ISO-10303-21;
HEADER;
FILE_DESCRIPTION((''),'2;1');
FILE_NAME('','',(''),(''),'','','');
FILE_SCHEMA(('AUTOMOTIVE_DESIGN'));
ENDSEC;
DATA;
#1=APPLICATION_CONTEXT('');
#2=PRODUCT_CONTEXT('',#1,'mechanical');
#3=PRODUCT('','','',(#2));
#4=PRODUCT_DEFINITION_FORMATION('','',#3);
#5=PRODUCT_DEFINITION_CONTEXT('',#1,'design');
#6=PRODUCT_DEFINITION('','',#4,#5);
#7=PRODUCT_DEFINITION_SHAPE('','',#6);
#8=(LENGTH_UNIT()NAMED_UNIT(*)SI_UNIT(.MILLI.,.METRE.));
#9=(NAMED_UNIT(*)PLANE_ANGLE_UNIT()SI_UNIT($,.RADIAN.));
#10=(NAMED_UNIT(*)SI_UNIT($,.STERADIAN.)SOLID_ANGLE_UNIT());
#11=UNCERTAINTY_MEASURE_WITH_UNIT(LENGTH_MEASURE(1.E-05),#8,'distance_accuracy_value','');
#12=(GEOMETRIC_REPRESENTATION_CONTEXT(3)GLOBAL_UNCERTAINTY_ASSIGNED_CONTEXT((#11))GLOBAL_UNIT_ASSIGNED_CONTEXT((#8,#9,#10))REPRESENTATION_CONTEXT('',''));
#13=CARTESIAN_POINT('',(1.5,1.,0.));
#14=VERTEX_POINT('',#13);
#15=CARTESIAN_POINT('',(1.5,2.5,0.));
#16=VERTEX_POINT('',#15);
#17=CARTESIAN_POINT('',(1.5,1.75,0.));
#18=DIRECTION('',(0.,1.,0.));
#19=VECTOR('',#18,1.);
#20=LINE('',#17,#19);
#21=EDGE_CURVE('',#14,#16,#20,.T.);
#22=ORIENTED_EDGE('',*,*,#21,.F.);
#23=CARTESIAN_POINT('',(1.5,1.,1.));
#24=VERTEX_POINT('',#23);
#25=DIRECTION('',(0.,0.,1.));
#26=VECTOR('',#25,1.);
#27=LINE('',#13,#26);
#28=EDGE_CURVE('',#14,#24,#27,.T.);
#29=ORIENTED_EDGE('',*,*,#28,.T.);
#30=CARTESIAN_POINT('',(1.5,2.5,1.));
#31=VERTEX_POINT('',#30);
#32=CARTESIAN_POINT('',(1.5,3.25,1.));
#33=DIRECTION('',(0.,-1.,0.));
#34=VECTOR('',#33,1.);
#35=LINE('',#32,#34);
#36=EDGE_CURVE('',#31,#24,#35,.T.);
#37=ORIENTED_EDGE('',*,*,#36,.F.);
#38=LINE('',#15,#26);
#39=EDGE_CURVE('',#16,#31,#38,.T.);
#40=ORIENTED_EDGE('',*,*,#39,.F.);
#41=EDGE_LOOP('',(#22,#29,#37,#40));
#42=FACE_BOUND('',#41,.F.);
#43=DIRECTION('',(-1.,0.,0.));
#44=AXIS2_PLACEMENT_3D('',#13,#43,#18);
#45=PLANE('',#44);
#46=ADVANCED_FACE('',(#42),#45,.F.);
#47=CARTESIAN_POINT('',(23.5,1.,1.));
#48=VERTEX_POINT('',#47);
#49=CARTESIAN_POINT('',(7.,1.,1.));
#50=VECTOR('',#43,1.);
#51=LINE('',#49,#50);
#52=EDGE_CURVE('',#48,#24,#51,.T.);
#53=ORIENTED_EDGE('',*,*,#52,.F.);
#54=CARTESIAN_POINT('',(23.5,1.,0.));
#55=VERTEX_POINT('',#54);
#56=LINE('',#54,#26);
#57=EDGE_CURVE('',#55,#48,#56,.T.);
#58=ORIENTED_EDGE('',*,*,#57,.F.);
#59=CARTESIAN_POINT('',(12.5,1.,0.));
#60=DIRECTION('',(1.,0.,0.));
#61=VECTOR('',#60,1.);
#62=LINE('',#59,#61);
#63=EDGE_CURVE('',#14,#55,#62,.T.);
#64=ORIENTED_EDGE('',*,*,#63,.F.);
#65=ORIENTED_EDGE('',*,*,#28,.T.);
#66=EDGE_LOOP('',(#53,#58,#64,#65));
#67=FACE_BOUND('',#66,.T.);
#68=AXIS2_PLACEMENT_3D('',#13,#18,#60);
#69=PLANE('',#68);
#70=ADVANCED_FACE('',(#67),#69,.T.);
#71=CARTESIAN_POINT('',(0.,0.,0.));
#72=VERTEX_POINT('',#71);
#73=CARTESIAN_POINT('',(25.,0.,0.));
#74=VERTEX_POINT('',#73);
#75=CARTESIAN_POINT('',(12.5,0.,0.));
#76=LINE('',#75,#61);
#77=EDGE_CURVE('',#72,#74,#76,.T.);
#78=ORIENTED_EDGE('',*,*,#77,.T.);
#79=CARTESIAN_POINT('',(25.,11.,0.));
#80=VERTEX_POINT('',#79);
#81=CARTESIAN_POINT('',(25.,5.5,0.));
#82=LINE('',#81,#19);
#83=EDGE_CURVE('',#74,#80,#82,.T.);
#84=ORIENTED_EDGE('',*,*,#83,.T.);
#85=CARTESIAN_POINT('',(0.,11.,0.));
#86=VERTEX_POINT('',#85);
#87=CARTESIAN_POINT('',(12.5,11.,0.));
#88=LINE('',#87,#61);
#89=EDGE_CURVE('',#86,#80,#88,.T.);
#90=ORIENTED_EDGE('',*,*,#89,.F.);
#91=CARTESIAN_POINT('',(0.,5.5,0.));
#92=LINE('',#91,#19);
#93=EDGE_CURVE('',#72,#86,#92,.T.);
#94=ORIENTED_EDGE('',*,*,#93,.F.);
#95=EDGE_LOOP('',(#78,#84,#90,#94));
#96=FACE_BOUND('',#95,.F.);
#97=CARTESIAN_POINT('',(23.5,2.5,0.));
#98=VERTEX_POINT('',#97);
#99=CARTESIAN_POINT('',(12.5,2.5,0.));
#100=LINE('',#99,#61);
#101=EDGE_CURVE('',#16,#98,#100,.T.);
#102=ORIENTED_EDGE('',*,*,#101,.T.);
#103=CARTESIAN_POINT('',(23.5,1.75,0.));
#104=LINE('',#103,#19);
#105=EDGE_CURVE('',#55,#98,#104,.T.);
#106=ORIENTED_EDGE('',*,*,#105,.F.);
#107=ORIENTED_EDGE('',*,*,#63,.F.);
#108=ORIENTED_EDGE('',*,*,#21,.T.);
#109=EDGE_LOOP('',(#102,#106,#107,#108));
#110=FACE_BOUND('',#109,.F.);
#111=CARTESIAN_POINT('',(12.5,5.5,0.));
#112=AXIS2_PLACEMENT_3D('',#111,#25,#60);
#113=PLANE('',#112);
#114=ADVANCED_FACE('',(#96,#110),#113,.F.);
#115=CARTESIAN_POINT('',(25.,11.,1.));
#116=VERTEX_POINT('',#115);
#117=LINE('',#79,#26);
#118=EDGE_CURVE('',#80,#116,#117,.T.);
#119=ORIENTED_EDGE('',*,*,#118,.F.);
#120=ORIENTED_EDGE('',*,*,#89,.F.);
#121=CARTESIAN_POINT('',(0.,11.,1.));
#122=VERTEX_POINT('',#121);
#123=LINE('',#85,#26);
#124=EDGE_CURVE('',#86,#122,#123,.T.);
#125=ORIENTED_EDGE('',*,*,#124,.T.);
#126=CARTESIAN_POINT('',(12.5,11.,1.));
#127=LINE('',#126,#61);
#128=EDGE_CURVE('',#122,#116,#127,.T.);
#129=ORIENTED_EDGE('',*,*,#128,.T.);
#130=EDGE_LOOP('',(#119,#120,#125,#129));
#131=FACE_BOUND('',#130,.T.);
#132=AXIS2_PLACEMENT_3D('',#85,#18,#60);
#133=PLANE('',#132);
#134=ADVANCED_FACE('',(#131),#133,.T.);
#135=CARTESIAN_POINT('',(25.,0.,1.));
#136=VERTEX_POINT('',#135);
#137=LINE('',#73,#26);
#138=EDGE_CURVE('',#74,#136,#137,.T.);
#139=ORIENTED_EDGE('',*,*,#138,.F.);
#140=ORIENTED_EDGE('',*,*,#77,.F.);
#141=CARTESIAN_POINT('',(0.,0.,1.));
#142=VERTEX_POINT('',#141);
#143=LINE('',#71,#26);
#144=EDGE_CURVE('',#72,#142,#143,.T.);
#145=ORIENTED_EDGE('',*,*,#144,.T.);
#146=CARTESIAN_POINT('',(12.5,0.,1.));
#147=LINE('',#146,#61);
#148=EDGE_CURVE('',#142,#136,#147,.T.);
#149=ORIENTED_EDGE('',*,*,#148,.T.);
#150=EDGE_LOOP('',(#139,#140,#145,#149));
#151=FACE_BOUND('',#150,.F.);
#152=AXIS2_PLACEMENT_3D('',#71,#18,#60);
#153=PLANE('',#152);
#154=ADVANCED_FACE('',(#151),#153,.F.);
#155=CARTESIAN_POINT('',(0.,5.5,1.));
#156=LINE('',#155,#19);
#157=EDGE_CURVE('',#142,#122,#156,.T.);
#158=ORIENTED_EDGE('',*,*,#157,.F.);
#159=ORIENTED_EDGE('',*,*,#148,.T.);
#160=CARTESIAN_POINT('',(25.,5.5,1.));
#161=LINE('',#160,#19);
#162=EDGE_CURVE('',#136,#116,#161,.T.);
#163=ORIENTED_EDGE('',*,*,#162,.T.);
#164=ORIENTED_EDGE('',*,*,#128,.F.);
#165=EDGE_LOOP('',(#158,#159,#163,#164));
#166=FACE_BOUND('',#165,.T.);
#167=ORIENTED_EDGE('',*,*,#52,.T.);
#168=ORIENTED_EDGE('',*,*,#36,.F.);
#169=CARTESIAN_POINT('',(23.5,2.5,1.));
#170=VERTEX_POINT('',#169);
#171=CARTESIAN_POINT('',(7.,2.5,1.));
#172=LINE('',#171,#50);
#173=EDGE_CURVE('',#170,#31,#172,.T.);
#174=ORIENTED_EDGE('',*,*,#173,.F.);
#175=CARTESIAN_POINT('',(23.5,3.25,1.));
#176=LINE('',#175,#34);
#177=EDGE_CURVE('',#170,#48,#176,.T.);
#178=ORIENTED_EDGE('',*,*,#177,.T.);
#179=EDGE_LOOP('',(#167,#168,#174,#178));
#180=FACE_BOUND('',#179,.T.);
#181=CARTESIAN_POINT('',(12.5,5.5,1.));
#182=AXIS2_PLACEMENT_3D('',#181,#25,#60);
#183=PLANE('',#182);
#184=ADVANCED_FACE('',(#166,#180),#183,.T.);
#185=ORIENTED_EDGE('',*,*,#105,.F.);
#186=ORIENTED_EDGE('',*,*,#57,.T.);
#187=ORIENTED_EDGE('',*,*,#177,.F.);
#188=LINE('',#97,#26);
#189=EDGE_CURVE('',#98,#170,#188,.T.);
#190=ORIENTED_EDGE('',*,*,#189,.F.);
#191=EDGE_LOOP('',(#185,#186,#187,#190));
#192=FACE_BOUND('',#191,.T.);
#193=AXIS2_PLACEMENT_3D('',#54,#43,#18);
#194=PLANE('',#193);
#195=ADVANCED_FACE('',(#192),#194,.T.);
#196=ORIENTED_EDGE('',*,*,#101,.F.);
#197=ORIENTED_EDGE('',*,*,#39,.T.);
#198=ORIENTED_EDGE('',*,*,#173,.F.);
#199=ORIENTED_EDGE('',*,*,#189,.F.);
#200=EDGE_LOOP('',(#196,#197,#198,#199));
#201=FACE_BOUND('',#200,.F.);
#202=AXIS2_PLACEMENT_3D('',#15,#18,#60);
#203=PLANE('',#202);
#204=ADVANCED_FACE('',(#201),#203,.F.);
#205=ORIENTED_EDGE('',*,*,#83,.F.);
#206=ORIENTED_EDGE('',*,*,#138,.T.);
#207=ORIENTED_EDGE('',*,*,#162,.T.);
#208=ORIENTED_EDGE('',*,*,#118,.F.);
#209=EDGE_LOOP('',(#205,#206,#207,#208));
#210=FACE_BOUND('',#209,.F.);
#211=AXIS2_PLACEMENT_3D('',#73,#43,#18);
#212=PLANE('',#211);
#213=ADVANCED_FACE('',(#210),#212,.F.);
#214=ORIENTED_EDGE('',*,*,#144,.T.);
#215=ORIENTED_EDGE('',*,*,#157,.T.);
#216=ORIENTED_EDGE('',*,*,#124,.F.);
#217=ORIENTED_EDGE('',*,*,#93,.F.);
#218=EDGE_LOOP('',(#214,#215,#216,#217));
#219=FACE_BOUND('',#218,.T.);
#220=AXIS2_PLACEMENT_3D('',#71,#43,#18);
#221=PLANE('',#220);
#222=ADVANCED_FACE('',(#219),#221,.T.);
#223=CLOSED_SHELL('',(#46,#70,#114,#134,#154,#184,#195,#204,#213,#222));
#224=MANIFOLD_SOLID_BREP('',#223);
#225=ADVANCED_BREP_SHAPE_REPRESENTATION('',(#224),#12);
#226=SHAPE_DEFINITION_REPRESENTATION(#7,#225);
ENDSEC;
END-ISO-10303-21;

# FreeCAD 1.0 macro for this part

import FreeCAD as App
import Part
import Sketcher
from FreeCAD import Vector

doc = App.newDocument("Part")
body = doc.addObject("PartDesign::Body", "Body")

# Sketch on XY plane
sketch1 = doc.addObject("Sketcher::SketchObject", "Sketch")
body.addObject(sketch1)
sketch1.AttachmentSupport = (doc.XY_Plane, [""])
sketch1.MapMode = "FlatFace"
sketch1.addGeometry(Part.LineSegment(Vector(1.5, 2.5, 0), Vector(1.5, 1, 0)), False)
sketch1.addGeometry(Part.LineSegment(Vector(1.5, 1, 0), Vector(23.5, 1, 0)), False)
sketch1.addGeometry(Part.LineSegment(Vector(23.5, 1, 0), Vector(23.5, 2.5, 0)), False)
sketch1.addGeometry(Part.LineSegment(Vector(23.5, 2.5, 0), Vector(1.5, 2.5, 0)), False)
sketch1.addConstraint(Sketcher.Constraint("Coincident", 0, 2, 1, 1))
sketch1.addConstraint(Sketcher.Constraint("Coincident", 1, 2, 2, 1))
sketch1.addConstraint(Sketcher.Constraint("Coincident", 2, 2, 3, 1))
sketch1.addConstraint(Sketcher.Constraint("Coincident", 3, 2, 0, 1))
sketch1.addConstraint(Sketcher.Constraint("Vertical", 0))
sketch1.addConstraint(Sketcher.Constraint("Horizontal", 1))
sketch1.addConstraint(Sketcher.Constraint("Vertical", 2))
sketch1.addConstraint(Sketcher.Constraint("Horizontal", 3))
sketch1.addConstraint(Sketcher.Constraint("DistanceX", 1, 1, 1, 2, 22.0))
sketch1.addConstraint(Sketcher.Constraint("DistanceY", 0, 2, 0, 1, 1.5))
sketch1.addConstraint(Sketcher.Constraint("DistanceY", -1, 1, 0, 2, 1.0))
sketch1.addConstraint(Sketcher.Constraint("DistanceX", -1, 1, 0, 2, 1.5))
pad1 = doc.addObject("PartDesign::Pad", "Pad")
body.addObject(pad1)
pad1.Profile = sketch1
pad1.Length = 2
body2 = doc.addObject("PartDesign::Body", "Body001")

# Sketch on XY plane
sketch2 = doc.addObject("Sketcher::SketchObject", "Sketch001")
body2.addObject(sketch2)
sketch2.AttachmentSupport = (doc.getObject("XY_Plane001"), [""])
sketch2.MapMode = "FlatFace"
sketch2.addGeometry(Part.LineSegment(Vector(0, 11, 0), Vector(0, 0, 0)), False)
sketch2.addGeometry(Part.LineSegment(Vector(0, 0, 0), Vector(25, 0, 0)), False)
sketch2.addGeometry(Part.LineSegment(Vector(25, 0, 0), Vector(25, 11, 0)), False)
sketch2.addGeometry(Part.LineSegment(Vector(25, 11, 0), Vector(0, 11, 0)), False)
sketch2.addConstraint(Sketcher.Constraint("Coincident", 0, 2, 1, 1))
sketch2.addConstraint(Sketcher.Constraint("Coincident", 1, 2, 2, 1))
sketch2.addConstraint(Sketcher.Constraint("Coincident", 2, 2, 3, 1))
sketch2.addConstraint(Sketcher.Constraint("Coincident", 3, 2, 0, 1))
sketch2.addConstraint(Sketcher.Constraint("Vertical", 0))
sketch2.addConstraint(Sketcher.Constraint("Horizontal", 1))
sketch2.addConstraint(Sketcher.Constraint("Vertical", 2))
sketch2.addConstraint(Sketcher.Constraint("Horizontal", 3))
sketch2.addConstraint(Sketcher.Constraint("Coincident", 0, 2, -1, 1))
sketch2.addConstraint(Sketcher.Constraint("DistanceX", 1, 1, 1, 2, 25.0))
sketch2.addConstraint(Sketcher.Constraint("DistanceY", 0, 2, 0, 1, 11.0))
pad2 = doc.addObject("PartDesign::Pad", "Pad001")
body2.addObject(pad2)
pad2.Profile = sketch2
pad2.Length = 1
doc.recompute()

boolean = doc.addObject("PartDesign::Boolean", "Boolean")
body2.addObject(boolean)
boolean.Type = "Cut"
boolean.addObjects([body])

doc.recompute()
